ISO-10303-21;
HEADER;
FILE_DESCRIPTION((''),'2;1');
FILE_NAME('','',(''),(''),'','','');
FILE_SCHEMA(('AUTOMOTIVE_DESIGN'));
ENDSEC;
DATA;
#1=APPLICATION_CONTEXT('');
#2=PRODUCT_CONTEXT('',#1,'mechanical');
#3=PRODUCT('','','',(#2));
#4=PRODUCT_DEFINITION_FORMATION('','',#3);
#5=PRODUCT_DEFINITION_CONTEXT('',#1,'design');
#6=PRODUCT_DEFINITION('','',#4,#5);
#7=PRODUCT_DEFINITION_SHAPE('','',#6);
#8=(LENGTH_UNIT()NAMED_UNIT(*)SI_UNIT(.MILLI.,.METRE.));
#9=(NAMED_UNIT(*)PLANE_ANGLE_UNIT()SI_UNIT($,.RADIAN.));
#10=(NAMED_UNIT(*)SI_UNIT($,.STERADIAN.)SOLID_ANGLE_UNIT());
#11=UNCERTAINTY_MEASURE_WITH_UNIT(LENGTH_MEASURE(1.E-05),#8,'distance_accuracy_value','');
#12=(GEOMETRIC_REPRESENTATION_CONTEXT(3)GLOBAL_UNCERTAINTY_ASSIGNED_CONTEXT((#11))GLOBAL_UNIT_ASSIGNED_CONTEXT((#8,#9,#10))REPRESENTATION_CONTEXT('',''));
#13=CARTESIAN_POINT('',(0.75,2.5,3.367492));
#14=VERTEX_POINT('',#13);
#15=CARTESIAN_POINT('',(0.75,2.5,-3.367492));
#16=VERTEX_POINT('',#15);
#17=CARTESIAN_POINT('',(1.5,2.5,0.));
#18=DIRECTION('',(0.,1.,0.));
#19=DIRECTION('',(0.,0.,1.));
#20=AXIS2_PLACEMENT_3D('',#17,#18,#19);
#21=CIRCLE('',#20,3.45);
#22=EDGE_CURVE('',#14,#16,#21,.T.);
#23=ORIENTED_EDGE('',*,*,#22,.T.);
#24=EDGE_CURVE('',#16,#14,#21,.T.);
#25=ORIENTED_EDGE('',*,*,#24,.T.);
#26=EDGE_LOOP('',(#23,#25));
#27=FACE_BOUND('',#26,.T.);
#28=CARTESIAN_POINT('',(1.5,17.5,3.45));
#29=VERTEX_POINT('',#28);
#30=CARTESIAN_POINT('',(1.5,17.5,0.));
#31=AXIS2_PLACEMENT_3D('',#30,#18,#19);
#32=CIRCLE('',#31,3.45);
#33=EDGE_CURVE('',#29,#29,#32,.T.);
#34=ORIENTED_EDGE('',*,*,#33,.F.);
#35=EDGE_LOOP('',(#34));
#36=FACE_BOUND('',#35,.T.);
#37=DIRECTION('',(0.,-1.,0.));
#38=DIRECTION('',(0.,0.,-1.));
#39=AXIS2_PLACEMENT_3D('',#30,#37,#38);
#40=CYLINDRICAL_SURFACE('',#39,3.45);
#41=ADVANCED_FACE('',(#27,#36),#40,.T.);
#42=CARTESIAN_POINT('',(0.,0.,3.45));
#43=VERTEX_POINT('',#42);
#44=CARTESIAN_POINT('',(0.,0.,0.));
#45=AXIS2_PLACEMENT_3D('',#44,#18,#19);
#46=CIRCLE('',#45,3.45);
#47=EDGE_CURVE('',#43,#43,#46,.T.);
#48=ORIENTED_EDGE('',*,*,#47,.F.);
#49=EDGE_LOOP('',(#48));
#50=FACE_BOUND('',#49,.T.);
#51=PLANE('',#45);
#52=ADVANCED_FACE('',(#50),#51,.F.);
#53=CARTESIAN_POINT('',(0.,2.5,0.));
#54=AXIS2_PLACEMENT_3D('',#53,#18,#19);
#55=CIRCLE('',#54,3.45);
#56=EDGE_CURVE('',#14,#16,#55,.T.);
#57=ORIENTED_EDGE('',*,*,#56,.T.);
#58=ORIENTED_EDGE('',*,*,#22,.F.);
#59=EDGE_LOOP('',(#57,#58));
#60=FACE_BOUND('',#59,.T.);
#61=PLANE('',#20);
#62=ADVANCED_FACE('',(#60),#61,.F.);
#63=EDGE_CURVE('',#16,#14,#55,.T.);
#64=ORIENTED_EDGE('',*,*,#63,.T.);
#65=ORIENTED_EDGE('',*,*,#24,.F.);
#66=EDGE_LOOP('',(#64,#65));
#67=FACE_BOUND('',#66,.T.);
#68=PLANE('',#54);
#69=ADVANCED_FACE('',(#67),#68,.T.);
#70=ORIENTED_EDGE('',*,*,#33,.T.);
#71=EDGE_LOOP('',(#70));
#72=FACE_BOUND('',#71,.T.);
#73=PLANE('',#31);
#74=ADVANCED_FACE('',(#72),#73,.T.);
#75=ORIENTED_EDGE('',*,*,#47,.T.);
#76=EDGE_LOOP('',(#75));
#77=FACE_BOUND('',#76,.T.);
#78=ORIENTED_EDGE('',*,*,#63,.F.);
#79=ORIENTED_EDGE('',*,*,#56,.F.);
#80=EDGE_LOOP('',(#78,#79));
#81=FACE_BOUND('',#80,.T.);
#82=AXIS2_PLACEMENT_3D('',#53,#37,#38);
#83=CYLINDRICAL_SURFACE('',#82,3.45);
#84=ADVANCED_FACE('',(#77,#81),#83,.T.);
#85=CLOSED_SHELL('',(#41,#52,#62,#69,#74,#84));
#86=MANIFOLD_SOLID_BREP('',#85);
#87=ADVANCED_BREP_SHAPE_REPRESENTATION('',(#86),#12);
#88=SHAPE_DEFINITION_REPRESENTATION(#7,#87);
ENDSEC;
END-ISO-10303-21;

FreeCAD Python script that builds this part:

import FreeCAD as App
import Part
import Sketcher
from FreeCAD import Vector
Q = App.Units.Quantity

doc = App.newDocument("Part")
params = doc.addObject("Spreadsheet::Sheet", "Params")
for row, (alias, value) in enumerate([
    ("sketch1_diameter", "6.9 mm"),
    ("pad1_length", "2.5 mm"),
    ("sketch2_diameter", "6.9 mm"),
    ("pad2_length", "15 mm"),
], start=1):
    params.set(f"A{row}", alias)
    params.set(f"B{row}", "=" + value)
    params.setAlias(f"B{row}", alias)

body = doc.addObject("PartDesign::Body", "Body")

sketch1 = body.newObject("Sketcher::SketchObject", "Sketch")
sketch1.AttachmentSupport = (doc.getObject("XZ_Plane"), [""])
sketch1.MapMode = "FlatFace"
sketch1.addGeometry(Part.Circle(Vector(0, 0, 0), Vector(0, 0, 1), 3.45), False)
sketch1.addConstraint(Sketcher.Constraint("Coincident", 0, 3, -1, 1))
sketch1.addConstraint(Sketcher.Constraint("Diameter", 0, Q("6.9 mm")))
sketch1.setExpression("Constraints[1]", "Params.sketch1_diameter")
pad1 = body.newObject("PartDesign::Pad", "Pad")
pad1.Profile = sketch1
pad1.setExpression("Length", "Params.pad1_length")
pad1.Reversed = True

sketch2 = body.newObject("Sketcher::SketchObject", "Sketch001")
sketch2.AttachmentSupport = (doc.getObject("XZ_Plane"), [""])
sketch2.MapMode = "FlatFace"
sketch2.AttachmentOffset = App.Placement(Vector(0, 0, -2.5), App.Rotation())
sketch2.addGeometry(Part.Circle(Vector(1.5, 0, 0), Vector(0, 0, 1), 3.45), False)
sketch2.addConstraint(Sketcher.Constraint("PointOnObject", 0, 3, -1))
sketch2.addConstraint(Sketcher.Constraint("Diameter", 0, Q("6.9 mm")))
sketch2.addConstraint(Sketcher.Constraint("DistanceX", -1, 1, 0, 3, Q("1.5 mm")))
sketch2.setExpression("Constraints[1]", "Params.sketch2_diameter")
pad2 = body.newObject("PartDesign::Pad", "Pad001")
pad2.Profile = sketch2
pad2.setExpression("Length", "Params.pad2_length")
pad2.Reversed = True

doc.recompute()
